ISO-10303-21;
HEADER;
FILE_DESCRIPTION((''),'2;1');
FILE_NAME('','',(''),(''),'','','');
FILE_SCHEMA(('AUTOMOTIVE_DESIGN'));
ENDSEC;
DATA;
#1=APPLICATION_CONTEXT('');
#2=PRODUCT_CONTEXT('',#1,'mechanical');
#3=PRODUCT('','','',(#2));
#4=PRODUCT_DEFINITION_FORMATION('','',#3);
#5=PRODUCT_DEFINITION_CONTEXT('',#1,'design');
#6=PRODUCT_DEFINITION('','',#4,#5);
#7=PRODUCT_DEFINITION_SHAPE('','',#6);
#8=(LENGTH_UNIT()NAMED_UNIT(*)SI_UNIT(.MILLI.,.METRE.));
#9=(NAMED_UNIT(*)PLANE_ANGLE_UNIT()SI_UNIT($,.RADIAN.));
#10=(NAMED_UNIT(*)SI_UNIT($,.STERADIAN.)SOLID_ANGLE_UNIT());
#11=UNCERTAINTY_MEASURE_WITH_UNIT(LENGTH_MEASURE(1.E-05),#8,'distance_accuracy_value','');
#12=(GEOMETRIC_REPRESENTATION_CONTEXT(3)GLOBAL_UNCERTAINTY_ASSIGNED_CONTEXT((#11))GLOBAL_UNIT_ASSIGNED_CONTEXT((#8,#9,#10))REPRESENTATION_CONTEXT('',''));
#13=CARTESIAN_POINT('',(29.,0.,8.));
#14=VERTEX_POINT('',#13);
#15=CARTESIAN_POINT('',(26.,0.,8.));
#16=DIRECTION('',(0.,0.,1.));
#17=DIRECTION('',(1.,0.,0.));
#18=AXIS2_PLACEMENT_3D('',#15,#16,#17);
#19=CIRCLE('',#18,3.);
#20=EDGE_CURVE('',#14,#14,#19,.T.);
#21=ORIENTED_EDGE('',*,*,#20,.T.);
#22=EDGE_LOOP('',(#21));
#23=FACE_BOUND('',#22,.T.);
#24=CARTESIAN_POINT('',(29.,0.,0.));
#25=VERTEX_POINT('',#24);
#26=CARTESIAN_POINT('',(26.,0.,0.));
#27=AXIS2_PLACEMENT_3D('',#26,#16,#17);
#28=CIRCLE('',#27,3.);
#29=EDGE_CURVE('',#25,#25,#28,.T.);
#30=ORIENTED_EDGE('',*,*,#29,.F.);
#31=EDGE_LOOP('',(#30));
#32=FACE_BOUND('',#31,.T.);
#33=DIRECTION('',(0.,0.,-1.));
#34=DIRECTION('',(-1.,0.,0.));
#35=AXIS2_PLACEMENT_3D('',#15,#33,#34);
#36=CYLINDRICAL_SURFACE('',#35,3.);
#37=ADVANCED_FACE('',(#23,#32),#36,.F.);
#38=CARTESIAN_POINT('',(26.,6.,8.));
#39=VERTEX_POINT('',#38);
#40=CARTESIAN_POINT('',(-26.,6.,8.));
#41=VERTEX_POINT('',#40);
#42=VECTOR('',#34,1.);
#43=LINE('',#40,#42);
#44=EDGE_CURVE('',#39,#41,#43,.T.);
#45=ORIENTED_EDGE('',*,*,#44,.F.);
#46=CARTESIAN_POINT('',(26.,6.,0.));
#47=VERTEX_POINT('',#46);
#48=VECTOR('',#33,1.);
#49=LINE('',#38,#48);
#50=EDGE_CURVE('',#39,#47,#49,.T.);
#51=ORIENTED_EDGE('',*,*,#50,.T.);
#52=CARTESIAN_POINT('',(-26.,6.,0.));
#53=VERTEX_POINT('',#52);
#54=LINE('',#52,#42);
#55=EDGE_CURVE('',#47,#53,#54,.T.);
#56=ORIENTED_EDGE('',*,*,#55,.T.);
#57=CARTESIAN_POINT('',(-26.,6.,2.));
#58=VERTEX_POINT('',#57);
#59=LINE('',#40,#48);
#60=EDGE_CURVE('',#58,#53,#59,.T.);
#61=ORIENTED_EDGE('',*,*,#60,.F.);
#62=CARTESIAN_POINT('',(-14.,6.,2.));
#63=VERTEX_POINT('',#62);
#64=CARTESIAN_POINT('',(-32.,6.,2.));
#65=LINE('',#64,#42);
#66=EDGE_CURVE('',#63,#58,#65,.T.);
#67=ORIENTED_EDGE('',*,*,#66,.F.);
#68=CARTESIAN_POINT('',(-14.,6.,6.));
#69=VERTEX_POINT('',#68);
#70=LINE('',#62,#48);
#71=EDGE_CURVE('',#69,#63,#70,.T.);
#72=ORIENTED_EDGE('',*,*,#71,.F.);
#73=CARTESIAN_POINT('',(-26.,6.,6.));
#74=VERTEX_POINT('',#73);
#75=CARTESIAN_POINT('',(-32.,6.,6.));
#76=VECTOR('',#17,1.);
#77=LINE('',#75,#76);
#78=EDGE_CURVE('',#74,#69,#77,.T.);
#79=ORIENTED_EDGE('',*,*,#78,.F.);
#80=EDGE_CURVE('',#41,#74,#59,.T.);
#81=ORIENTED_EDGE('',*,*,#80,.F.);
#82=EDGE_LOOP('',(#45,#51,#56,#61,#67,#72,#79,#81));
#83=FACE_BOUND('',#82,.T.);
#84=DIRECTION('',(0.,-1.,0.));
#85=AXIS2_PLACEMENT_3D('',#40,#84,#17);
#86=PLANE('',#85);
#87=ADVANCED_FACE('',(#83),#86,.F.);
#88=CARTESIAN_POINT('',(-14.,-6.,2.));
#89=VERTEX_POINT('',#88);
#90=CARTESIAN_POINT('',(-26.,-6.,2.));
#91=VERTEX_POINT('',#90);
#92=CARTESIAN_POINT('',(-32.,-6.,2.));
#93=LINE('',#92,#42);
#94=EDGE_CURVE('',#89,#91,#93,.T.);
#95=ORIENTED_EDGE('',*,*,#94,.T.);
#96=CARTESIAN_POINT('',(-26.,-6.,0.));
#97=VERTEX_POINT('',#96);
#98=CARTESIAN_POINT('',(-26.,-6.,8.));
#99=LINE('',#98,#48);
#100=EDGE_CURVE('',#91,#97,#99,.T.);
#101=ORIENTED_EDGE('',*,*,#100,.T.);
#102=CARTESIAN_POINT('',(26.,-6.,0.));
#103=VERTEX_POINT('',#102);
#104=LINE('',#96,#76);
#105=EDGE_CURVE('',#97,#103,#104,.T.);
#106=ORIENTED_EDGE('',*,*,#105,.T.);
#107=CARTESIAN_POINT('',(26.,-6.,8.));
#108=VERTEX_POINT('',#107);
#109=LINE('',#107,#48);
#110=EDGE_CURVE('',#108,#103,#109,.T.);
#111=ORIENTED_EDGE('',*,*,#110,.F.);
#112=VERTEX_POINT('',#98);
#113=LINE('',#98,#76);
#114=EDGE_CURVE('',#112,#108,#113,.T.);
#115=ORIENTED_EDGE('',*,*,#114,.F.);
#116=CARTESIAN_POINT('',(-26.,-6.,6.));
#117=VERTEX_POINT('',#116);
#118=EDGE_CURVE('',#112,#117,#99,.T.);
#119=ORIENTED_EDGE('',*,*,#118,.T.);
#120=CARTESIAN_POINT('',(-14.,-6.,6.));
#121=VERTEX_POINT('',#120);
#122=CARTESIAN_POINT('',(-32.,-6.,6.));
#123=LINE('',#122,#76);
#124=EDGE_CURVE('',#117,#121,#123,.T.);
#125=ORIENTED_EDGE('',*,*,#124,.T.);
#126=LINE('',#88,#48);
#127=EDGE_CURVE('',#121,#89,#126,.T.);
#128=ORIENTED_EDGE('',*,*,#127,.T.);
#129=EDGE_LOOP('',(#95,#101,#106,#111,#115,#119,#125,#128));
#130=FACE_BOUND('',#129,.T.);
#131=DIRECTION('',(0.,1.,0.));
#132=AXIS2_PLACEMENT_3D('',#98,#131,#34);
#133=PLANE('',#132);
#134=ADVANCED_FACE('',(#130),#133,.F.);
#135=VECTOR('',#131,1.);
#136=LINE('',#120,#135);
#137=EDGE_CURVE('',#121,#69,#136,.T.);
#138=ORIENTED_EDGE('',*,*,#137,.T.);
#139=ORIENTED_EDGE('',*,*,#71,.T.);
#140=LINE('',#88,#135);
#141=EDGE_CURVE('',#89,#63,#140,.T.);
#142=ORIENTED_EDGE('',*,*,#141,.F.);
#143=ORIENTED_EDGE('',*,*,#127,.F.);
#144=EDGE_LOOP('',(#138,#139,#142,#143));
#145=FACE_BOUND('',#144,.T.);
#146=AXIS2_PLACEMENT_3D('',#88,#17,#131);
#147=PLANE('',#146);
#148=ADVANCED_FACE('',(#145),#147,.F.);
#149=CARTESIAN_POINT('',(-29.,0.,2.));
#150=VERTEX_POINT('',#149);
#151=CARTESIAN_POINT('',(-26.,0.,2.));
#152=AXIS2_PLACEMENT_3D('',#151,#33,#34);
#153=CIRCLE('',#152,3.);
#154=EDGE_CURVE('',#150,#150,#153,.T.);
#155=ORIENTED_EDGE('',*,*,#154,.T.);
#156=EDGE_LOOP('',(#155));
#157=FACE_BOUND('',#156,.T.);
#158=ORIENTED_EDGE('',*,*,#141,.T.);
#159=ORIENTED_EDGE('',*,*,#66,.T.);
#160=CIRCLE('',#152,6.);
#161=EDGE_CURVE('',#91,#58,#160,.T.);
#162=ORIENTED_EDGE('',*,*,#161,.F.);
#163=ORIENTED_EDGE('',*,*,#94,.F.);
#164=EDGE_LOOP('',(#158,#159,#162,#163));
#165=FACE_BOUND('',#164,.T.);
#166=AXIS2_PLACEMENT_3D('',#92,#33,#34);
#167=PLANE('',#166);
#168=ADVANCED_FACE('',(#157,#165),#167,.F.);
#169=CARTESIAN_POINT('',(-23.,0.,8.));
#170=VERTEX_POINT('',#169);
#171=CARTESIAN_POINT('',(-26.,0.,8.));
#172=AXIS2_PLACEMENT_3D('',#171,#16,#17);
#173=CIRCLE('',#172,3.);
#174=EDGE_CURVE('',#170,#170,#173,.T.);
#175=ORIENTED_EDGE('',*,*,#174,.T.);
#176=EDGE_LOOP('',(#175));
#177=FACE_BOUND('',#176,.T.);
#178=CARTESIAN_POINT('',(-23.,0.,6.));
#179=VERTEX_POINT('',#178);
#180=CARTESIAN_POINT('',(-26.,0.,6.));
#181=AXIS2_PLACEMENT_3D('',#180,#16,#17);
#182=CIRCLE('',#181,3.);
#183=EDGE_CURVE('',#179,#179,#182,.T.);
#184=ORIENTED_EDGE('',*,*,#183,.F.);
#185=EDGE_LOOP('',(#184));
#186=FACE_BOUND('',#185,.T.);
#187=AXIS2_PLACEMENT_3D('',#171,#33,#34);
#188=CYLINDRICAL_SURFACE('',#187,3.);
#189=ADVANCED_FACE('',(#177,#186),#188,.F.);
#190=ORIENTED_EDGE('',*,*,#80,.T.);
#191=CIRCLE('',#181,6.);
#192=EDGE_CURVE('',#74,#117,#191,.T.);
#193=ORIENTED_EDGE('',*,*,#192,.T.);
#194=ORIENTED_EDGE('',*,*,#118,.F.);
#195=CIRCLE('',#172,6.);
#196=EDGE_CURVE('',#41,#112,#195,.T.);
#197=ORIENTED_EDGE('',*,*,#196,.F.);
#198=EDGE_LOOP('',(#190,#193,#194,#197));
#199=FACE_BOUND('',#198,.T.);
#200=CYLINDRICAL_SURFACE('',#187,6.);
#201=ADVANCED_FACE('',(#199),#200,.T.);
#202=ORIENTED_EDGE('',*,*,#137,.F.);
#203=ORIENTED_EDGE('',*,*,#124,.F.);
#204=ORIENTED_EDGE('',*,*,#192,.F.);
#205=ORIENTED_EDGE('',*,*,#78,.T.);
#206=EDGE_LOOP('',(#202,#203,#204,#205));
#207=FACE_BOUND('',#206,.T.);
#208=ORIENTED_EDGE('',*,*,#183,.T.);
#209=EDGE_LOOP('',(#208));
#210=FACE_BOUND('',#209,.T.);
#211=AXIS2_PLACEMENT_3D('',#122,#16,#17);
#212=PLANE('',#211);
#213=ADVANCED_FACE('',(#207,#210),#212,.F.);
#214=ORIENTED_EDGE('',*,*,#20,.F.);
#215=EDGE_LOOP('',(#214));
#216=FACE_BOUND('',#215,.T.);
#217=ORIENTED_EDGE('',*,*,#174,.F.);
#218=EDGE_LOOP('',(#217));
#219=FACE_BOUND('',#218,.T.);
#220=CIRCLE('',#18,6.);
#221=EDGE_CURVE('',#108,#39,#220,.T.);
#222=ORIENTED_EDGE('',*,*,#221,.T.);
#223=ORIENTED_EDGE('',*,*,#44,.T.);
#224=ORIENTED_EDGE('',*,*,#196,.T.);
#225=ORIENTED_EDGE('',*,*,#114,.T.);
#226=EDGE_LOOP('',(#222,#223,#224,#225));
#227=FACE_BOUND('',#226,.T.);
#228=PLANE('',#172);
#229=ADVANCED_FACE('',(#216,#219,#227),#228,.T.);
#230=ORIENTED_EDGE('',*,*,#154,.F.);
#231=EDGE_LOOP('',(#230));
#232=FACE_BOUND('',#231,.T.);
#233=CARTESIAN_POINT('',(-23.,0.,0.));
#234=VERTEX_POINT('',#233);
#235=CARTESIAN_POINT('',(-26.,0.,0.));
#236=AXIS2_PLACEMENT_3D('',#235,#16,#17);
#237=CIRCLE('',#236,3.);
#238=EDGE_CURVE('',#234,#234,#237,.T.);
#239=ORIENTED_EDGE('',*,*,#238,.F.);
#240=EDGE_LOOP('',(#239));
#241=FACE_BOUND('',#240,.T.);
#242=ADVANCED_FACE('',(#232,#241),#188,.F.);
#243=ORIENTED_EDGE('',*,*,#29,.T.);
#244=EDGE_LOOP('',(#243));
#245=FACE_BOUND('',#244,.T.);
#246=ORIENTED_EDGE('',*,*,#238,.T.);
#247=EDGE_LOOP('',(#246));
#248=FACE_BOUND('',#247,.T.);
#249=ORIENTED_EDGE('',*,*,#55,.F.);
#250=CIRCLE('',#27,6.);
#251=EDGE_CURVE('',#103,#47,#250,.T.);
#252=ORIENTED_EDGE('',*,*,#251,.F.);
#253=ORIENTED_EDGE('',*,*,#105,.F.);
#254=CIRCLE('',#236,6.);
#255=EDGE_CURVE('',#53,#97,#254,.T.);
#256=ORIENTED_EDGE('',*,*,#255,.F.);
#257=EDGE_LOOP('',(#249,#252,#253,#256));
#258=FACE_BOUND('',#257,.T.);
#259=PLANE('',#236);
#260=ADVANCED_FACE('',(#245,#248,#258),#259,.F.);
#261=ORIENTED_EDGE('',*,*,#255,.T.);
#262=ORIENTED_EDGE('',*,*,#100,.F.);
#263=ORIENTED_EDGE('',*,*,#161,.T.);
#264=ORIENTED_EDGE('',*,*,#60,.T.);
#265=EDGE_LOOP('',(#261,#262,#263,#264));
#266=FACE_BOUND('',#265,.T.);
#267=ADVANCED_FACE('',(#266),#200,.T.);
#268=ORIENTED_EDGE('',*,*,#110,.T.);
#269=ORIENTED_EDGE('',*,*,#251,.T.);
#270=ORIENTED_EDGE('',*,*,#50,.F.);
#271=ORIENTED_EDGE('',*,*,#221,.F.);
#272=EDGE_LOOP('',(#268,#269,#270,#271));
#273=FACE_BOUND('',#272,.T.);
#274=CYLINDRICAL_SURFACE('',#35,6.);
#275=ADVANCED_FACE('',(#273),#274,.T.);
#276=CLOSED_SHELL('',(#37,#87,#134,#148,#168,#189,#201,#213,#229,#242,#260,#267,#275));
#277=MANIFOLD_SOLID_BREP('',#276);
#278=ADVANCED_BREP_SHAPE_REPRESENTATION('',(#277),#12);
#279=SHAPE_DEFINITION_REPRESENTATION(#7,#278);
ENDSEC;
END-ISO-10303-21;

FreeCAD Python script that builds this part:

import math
import FreeCAD as App
import Part
import Sketcher
from FreeCAD import Vector


def add_polygon(sketch, points):
    """Adds a closed chain of lines whose ends are joined by coincident constraints."""
    first, n = sketch.GeometryCount, len(points)
    for a, b in zip(points, points[1:] + points[:1]):
        sketch.addGeometry(Part.LineSegment(App.Vector(*a, 0), App.Vector(*b, 0)), False)
    for i in range(n):
        sketch.addConstraint(Sketcher.Constraint("Coincident", first + i, 2, first + (i + 1) % n, 1))

doc = App.newDocument("Part")
body = doc.addObject("PartDesign::Body", "Body")

sketch1 = body.newObject("Sketcher::SketchObject", "Sketch")
sketch1.AttachmentSupport = (doc.getObject("XY_Plane"), [""])
sketch1.MapMode = "FlatFace"
sketch1.addGeometry([
    Part.LineSegment(Vector(26, 6, 0), Vector(-26, 6, 0)),
    Part.ArcOfCircle(Part.Circle(Vector(-26, 0, 0), Vector(0, 0, 1), 6), math.radians(90), math.radians(270)),
    Part.LineSegment(Vector(-26, -6, 0), Vector(26, -6, 0)),
    Part.ArcOfCircle(Part.Circle(Vector(26, 0, 0), Vector(0, 0, 1), 6), math.radians(-90), math.radians(90)),
    Part.Circle(Vector(26, 0, 0), Vector(0, 0, 1), 3),
    Part.Circle(Vector(-26, 0, 0), Vector(0, 0, 1), 3),
], False)
sketch1.addConstraint([
    Sketcher.Constraint("Tangent", 0, 2, 1, 1),
    Sketcher.Constraint("Tangent", 1, 2, 2, 1),
    Sketcher.Constraint("Tangent", 2, 2, 3, 1),
    Sketcher.Constraint("Tangent", 3, 2, 0, 1),
    Sketcher.Constraint("Horizontal", 0),
    Sketcher.Constraint("Horizontal", 2),
    Sketcher.Constraint("Coincident", 4, 3, 3, 3),
    Sketcher.Constraint("Coincident", 5, 3, 1, 3),
    Sketcher.Constraint("Equal", 4, 5),
    Sketcher.Constraint("Symmetric", 1, 3, 3, 3, -1, 1),
    Sketcher.Constraint("Diameter", 4, 6.0),
    Sketcher.Constraint("Radius", 1, 6.0),
    Sketcher.Constraint("DistanceX", 0, 2, 0, 1, 52.0),
])
pad1 = body.newObject("PartDesign::Pad", "Pad")
pad1.Profile = sketch1
pad1.Length = 8

sketch2 = body.newObject("Sketcher::SketchObject", "Sketch001")
sketch2.AttachmentSupport = (doc.getObject("XZ_Plane"), [""])
sketch2.MapMode = "FlatFace"
sketch2.AttachmentOffset = App.Placement(Vector(0, 0, -6), App.Rotation())
add_polygon(sketch2, [(-32, 2), (-32, 6), (-14, 6), (-14, 2)])
sketch2.addConstraint([
    Sketcher.Constraint("Vertical", 0),
    Sketcher.Constraint("Horizontal", 1),
    Sketcher.Constraint("Vertical", 2),
    Sketcher.Constraint("Horizontal", 3),
    Sketcher.Constraint("DistanceX", 1, 1, 1, 2, 18.0),
    Sketcher.Constraint("DistanceY", 0, 1, 0, 2, 4.0),
    Sketcher.Constraint("DistanceX", 0, 2, -1, 1, 32.0),
    Sketcher.Constraint("DistanceY", -1, 1, 0, 2, 6.0),
])
pocket1 = body.newObject("PartDesign::Pocket", "Pocket")
pocket1.Profile = sketch2
pocket1.Type = "ThroughAll"
pocket1.Reversed = True

doc.recompute()
